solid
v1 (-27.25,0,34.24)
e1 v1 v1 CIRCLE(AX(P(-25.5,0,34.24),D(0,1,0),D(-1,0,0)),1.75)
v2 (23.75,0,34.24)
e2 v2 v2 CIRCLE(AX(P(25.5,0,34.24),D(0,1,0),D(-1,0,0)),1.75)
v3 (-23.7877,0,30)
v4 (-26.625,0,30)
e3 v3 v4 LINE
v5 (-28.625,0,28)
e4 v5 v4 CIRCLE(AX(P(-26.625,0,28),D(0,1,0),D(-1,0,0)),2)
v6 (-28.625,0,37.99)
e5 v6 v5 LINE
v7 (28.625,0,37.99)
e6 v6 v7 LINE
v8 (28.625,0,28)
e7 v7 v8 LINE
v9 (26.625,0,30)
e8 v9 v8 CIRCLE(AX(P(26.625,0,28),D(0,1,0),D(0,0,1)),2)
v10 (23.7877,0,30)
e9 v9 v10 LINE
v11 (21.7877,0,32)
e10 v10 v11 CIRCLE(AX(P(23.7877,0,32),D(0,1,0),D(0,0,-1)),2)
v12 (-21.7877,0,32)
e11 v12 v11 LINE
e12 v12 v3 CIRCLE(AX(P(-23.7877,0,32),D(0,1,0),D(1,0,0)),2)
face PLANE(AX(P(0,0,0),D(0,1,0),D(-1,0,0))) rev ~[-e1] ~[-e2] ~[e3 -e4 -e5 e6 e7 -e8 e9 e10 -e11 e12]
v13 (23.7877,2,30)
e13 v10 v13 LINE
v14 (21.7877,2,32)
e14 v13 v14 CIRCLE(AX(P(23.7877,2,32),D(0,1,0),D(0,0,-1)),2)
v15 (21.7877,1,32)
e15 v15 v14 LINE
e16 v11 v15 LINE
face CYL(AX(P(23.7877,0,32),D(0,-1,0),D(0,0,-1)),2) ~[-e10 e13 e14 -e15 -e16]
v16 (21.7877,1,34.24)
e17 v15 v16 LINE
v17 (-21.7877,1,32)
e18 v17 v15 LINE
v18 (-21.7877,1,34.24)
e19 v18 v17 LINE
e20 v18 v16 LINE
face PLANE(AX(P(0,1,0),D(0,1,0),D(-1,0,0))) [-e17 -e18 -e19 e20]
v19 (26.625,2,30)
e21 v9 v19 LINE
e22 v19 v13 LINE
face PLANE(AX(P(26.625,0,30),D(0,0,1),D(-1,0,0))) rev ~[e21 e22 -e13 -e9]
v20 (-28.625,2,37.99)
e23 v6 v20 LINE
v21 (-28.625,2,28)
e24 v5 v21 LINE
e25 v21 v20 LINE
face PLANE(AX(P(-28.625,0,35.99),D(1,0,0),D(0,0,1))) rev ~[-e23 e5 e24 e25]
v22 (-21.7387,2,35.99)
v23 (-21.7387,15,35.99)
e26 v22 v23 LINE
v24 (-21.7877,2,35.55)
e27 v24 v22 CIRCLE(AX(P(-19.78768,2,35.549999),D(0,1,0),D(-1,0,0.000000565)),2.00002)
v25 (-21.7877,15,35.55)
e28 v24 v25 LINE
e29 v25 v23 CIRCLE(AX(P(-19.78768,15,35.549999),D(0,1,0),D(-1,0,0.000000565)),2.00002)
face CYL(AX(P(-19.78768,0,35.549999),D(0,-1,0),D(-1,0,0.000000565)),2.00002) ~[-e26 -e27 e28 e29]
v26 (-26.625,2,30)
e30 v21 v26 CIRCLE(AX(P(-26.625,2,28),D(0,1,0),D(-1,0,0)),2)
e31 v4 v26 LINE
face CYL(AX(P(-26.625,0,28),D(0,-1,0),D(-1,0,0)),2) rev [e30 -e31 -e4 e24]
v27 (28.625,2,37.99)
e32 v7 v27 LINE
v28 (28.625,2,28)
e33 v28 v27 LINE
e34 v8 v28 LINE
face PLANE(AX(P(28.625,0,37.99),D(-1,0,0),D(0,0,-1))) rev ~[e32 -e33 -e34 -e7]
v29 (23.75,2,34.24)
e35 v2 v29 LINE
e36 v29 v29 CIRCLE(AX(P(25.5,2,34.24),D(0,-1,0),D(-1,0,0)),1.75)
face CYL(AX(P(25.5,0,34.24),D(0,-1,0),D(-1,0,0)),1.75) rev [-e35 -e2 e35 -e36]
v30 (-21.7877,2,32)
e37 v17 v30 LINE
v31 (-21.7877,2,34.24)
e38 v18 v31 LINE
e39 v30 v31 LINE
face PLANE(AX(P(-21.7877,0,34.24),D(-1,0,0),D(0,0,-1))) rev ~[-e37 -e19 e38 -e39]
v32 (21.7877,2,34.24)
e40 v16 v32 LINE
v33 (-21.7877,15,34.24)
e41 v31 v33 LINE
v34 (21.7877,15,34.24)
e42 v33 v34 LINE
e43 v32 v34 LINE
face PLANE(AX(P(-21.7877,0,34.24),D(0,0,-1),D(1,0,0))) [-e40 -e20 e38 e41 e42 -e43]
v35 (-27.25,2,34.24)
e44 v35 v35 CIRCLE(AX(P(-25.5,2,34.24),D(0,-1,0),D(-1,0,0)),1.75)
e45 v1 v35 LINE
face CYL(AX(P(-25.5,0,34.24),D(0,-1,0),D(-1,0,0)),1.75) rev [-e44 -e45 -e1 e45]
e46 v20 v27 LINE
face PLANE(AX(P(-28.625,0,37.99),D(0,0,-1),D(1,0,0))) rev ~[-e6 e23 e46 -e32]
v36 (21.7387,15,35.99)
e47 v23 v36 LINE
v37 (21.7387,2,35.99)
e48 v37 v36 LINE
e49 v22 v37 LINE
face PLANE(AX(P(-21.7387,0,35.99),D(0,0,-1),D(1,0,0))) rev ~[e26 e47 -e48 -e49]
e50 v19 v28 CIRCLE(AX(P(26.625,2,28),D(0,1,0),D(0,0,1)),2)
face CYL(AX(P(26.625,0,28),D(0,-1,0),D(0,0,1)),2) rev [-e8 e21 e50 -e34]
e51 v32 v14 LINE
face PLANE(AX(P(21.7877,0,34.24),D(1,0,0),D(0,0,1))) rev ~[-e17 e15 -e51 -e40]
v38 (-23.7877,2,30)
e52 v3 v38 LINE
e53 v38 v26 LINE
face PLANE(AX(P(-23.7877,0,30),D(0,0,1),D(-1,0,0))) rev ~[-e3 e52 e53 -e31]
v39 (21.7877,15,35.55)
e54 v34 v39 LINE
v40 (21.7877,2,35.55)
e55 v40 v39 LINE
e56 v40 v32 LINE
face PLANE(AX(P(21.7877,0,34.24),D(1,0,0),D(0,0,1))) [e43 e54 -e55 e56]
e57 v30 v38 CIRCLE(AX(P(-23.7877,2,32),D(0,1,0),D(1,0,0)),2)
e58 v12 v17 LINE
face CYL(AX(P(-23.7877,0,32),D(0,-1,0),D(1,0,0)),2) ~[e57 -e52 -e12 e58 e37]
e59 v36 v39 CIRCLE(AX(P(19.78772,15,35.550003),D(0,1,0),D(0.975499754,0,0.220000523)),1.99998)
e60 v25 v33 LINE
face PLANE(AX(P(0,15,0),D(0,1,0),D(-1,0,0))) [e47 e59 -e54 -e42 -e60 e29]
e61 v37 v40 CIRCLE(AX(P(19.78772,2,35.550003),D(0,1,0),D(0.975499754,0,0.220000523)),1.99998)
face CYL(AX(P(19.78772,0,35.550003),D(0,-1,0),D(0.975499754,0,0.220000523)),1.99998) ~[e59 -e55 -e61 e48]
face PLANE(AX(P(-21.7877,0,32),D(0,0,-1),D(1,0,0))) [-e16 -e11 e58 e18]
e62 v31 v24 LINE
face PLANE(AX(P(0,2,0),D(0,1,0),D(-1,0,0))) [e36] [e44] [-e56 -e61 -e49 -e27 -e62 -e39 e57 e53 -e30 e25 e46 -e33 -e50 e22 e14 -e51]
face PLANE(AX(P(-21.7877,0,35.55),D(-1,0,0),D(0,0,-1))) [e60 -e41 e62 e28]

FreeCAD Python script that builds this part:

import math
import FreeCAD as App
import Part
import Sketcher


def add_polygon(sketch, points):
    """Adds a closed chain of lines whose ends are joined by coincident constraints."""
    first, n = sketch.GeometryCount, len(points)
    for a, b in zip(points, points[1:] + points[:1]):
        sketch.addGeometry(Part.LineSegment(App.Vector(*a, 0), App.Vector(*b, 0)), False)
    for i in range(n):
        sketch.addConstraint(Sketcher.Constraint("Coincident", first + i, 2, first + (i + 1) % n, 1))

doc = App.newDocument("Part")
params = doc.addObject("Spreadsheet::Sheet", "Params")
for row, (alias, value) in enumerate([
    ("sketch1_radius", "2 mm"),
    ("sketch1_diameter", "3.5 mm"),
    ("sketch1_height", "3.55 mm"),
    ("sketch1_height2", "7.99 mm"),
    ("pad1_length", "2 mm"),
    ("sketch2_radius", "2 mm"),
    ("sketch2_height", "1.31 mm"),
    ("pad2_length", "15 mm"),
    ("sketch3_height", "2.24 mm"),
    ("pad3_length", "1 mm"),
    ("sketch4_height", "2 mm"),
    ("sketch4_width", "57.25 mm"),
    ("pad4_length", "2 mm"),
], start=1):
    params.set(f"A{row}", alias)
    params.set(f"B{row}", "=" + value)
    params.setAlias(f"B{row}", alias)

body = doc.addObject("PartDesign::Body", "Body")
body.AllowCompound = True

# Sketch on XZ plane
sketch1 = body.newObject("Sketcher::SketchObject", "Sketch")
sketch1.AttachmentSupport = (doc.getObject("XZ_Plane"), [""])
sketch1.MapMode = "FlatFace"
sketch1.addGeometry([
    Part.LineSegment(App.Vector(-28.625, 35.99, 0), App.Vector(-25.5, 35.99, 0)),  # 0
    Part.LineSegment(App.Vector(-25.5, 35.99, 0), App.Vector(-21.7387, 35.99, 0)),  # 1
    Part.ArcOfCircle(Part.Circle(App.Vector(-19.7877, 35.55, 0), App.Vector(0, 0, 1), 2), math.radians(167.290969), math.radians(180)),  # 2
    Part.LineSegment(App.Vector(-21.7877, 35.55, 0), App.Vector(-21.7877, 32, 0)),  # 3
    Part.ArcOfCircle(Part.Circle(App.Vector(-23.7877, 32, 0), App.Vector(0, 0, 1), 2), math.radians(-90), math.radians(0)),  # 4
    Part.LineSegment(App.Vector(-23.7877, 30, 0), App.Vector(-26.625, 30, 0)),  # 5
    Part.ArcOfCircle(Part.Circle(App.Vector(-26.625, 28, 0), App.Vector(0, 0, 1), 2), math.radians(90), math.radians(180)),  # 6
    Part.LineSegment(App.Vector(-28.625, 28, 0), App.Vector(-28.625, 35.99, 0)),  # 7
    Part.Circle(App.Vector(-25.5, 34.24, 0), App.Vector(0, 0, 1), 1.75),  # 8
    Part.ArcOfCircle(Part.Circle(App.Vector(19.7877, 35.55, 0), App.Vector(0, 0, 1), 2), math.radians(0), math.radians(12.709031)),  # 9
    Part.LineSegment(App.Vector(21.7387, 35.99, 0), App.Vector(25.5, 35.99, 0)),  # 10
    Part.LineSegment(App.Vector(25.5, 35.99, 0), App.Vector(28.625, 35.99, 0)),  # 11
    Part.LineSegment(App.Vector(28.625, 35.99, 0), App.Vector(28.625, 28, 0)),  # 12
    Part.ArcOfCircle(Part.Circle(App.Vector(26.625, 28, 0), App.Vector(0, 0, 1), 2), math.radians(0), math.radians(90)),  # 13
    Part.LineSegment(App.Vector(26.625, 30, 0), App.Vector(23.7877, 30, 0)),  # 14
    Part.ArcOfCircle(Part.Circle(App.Vector(23.7877, 32, 0), App.Vector(0, 0, 1), 2), math.radians(180), math.radians(270)),  # 15
    Part.LineSegment(App.Vector(21.7877, 32, 0), App.Vector(21.7877, 35.55, 0)),  # 16
    Part.Circle(App.Vector(25.5, 34.24, 0), App.Vector(0, 0, 1), 1.75),  # 17
], False)
sketch1.addConstraint([
    Sketcher.Constraint("Coincident", 0, 2, 1, 1),
    Sketcher.Constraint("Coincident", 1, 2, 2, 1),
    Sketcher.Constraint("Tangent", 2, 2, 3, 1),
    Sketcher.Constraint("Tangent", 3, 2, 4, 2),
    Sketcher.Constraint("Tangent", 4, 1, 5, 1),
    Sketcher.Constraint("Tangent", 5, 2, 6, 1),
    Sketcher.Constraint("Tangent", 6, 2, 7, 1),
    Sketcher.Constraint("Coincident", 7, 2, 0, 1),
    Sketcher.Constraint("Coincident", 9, 2, 10, 1),
    Sketcher.Constraint("Coincident", 10, 2, 11, 1),
    Sketcher.Constraint("Coincident", 11, 2, 12, 1),
    Sketcher.Constraint("Tangent", 12, 2, 13, 1),
    Sketcher.Constraint("Tangent", 13, 2, 14, 1),
    Sketcher.Constraint("Tangent", 14, 2, 15, 2),
    Sketcher.Constraint("Tangent", 15, 1, 16, 1),
    Sketcher.Constraint("Tangent", 16, 2, 9, 1),
    Sketcher.Constraint("Horizontal", 0),
    Sketcher.Constraint("Horizontal", 1),
    Sketcher.Constraint("Vertical", 3),
    Sketcher.Constraint("Horizontal", 5),
    Sketcher.Constraint("Vertical", 7),
    Sketcher.Constraint("Horizontal", 10),
    Sketcher.Constraint("Horizontal", 11),
    Sketcher.Constraint("Vertical", 12),
    Sketcher.Constraint("Horizontal", 14),
    Sketcher.Constraint("Vertical", 16),
    Sketcher.Constraint("Equal", 2, 4),
    Sketcher.Constraint("Equal", 4, 6),
    Sketcher.Constraint("Equal", 6, 9),
    Sketcher.Constraint("Equal", 9, 13),
    Sketcher.Constraint("Equal", 13, 15),
    Sketcher.Constraint("Equal", 8, 17),
    Sketcher.Constraint("Symmetric", 2, 3, 9, 3, -2),
    Sketcher.Constraint("Symmetric", 6, 3, 13, 3, -2),
    Sketcher.Constraint("Symmetric", 8, 3, 17, 3, -2),
    Sketcher.Constraint("Symmetric", 0, 2, 10, 2, -2),
    Sketcher.Constraint("Vertical", 8, 3, 0, 2),
    Sketcher.Constraint("Radius", 2, 2.0),
    Sketcher.Constraint("Diameter", 8, 3.5),
    Sketcher.Constraint("DistanceY", -1, 1, 4, 3, 32.0),
    Sketcher.Constraint("DistanceY", 3, 2, 3, 1, 3.55),
    Sketcher.Constraint("DistanceY", 7, 1, 7, 2, 7.99),
    Sketcher.Constraint("DistanceX", 8, 3, -1, 1, 25.5),
    Sketcher.Constraint("DistanceX", 0, 1, 0, 2, 3.125),
    Sketcher.Constraint("DistanceY", -1, 1, 8, 3, 34.24),
    Sketcher.Constraint("DistanceX", 1, 1, 1, 2, 3.7613),
])
sketch1.setExpression("Constraints[37]", "Params.sketch1_radius")
sketch1.setExpression("Constraints[38]", "Params.sketch1_diameter")
sketch1.setExpression("Constraints[40]", "Params.sketch1_height")
sketch1.setExpression("Constraints[41]", "Params.sketch1_height2")
pad1 = body.newObject("PartDesign::Pad", "Pad")
pad1.Profile = sketch1
pad1.setExpression("Length", "Params.pad1_length")
pad1.Reversed = True

# Sketch on XZ plane
sketch2 = body.newObject("Sketcher::SketchObject", "Sketch001")
sketch2.AttachmentSupport = (doc.getObject("XZ_Plane"), [""])
sketch2.MapMode = "FlatFace"
sketch2.addGeometry([
    Part.ArcOfCircle(Part.Circle(App.Vector(-19.7877, 35.55, 0), App.Vector(0, 0, 1), 2), math.radians(167.290969), math.radians(180)),  # 0
    Part.LineSegment(App.Vector(-21.7387, 35.99, 0), App.Vector(21.7387, 35.99, 0)),  # 1
    Part.ArcOfCircle(Part.Circle(App.Vector(19.7877, 35.55, 0), App.Vector(0, 0, 1), 2), math.radians(0), math.radians(12.709031)),  # 2
    Part.LineSegment(App.Vector(21.7877, 35.55, 0), App.Vector(21.7877, 34.24, 0)),  # 3
    Part.LineSegment(App.Vector(21.7877, 34.24, 0), App.Vector(-21.7877, 34.24, 0)),  # 4
    Part.LineSegment(App.Vector(-21.7877, 34.24, 0), App.Vector(-21.7877, 35.55, 0)),  # 5
], False)
sketch2.addConstraint([
    Sketcher.Constraint("Coincident", 0, 1, 1, 1),
    Sketcher.Constraint("Coincident", 1, 2, 2, 2),
    Sketcher.Constraint("Tangent", 2, 1, 3, 1),
    Sketcher.Constraint("Coincident", 3, 2, 4, 1),
    Sketcher.Constraint("Coincident", 4, 2, 5, 1),
    Sketcher.Constraint("Tangent", 5, 2, 0, 2),
    Sketcher.Constraint("Horizontal", 1),
    Sketcher.Constraint("Vertical", 3),
    Sketcher.Constraint("Horizontal", 4),
    Sketcher.Constraint("Vertical", 5),
    Sketcher.Constraint("Equal", 0, 2),
    Sketcher.Constraint("Symmetric", 0, 3, 2, 3, -2),
    Sketcher.Constraint("Radius", 0, 2.0),
    Sketcher.Constraint("DistanceY", 3, 2, 3, 1, 1.31),
    Sketcher.Constraint("DistanceY", -1, 1, 0, 3, 35.55),
    Sketcher.Constraint("DistanceY", -1, 1, 0, 1, 35.99),
    Sketcher.Constraint("DistanceX", 1, 1, 1, 2, 43.4774),
])
sketch2.setExpression("Constraints[12]", "Params.sketch2_radius")
sketch2.setExpression("Constraints[13]", "Params.sketch2_height")
pad2 = body.newObject("PartDesign::Pad", "Pad001")
pad2.Profile = sketch2
pad2.setExpression("Length", "Params.pad2_length")
pad2.Reversed = True

# Sketch on XZ plane
sketch3 = body.newObject("Sketcher::SketchObject", "Sketch002")
sketch3.AttachmentSupport = (doc.getObject("XZ_Plane"), [""])
sketch3.MapMode = "FlatFace"
add_polygon(sketch3, [(-21.7877, 32), (-21.7877, 34.24), (21.7877, 34.24), (21.7877, 32)])  # lines 0-3
sketch3.addConstraint([
    Sketcher.Constraint("Vertical", 0),
    Sketcher.Constraint("Horizontal", 1),
    Sketcher.Constraint("Vertical", 2),
    Sketcher.Constraint("Horizontal", 3),
    Sketcher.Constraint("DistanceY", -1, 1, 2, 2, 32.0),
    Sketcher.Constraint("DistanceY", 0, 1, 0, 2, 2.24),
    Sketcher.Constraint("DistanceX", 1, 1, 1, 2, 43.5754),
    Sketcher.Constraint("DistanceX", 0, 2, -1, 1, 21.7877),
])
sketch3.setExpression("Constraints[9]", "Params.sketch3_height")
pad3 = body.newObject("PartDesign::Pad", "Pad002")
pad3.Profile = sketch3
pad3.setExpression("Length", "Params.pad3_length")
pad3.Reversed = True

# Sketch on XZ plane
sketch4 = body.newObject("Sketcher::SketchObject", "Sketch003")
sketch4.AttachmentSupport = (doc.getObject("XZ_Plane"), [""])
sketch4.MapMode = "FlatFace"
add_polygon(sketch4, [(28.625, 35.99), (-28.625, 35.99), (-28.625, 37.99), (28.625, 37.99)])  # lines 0-3
sketch4.addConstraint([
    Sketcher.Constraint("Horizontal", 0),
    Sketcher.Constraint("Vertical", 1),
    Sketcher.Constraint("Horizontal", 2),
    Sketcher.Constraint("Vertical", 3),
    Sketcher.Constraint("DistanceY", 1, 1, 1, 2, 2.0),
    Sketcher.Constraint("DistanceX", 0, 2, 0, 1, 57.25),
    Sketcher.Constraint("DistanceY", -1, 1, 0, 2, 35.99),
    Sketcher.Constraint("DistanceX", 0, 2, -1, 1, 28.625),
])
sketch4.setExpression("Constraints[8]", "Params.sketch4_height")
sketch4.setExpression("Constraints[9]", "Params.sketch4_width")
pad4 = body.newObject("PartDesign::Pad", "Pad003")
pad4.Profile = sketch4
pad4.setExpression("Length", "Params.pad4_length")
pad4.Reversed = True

doc.recompute()
